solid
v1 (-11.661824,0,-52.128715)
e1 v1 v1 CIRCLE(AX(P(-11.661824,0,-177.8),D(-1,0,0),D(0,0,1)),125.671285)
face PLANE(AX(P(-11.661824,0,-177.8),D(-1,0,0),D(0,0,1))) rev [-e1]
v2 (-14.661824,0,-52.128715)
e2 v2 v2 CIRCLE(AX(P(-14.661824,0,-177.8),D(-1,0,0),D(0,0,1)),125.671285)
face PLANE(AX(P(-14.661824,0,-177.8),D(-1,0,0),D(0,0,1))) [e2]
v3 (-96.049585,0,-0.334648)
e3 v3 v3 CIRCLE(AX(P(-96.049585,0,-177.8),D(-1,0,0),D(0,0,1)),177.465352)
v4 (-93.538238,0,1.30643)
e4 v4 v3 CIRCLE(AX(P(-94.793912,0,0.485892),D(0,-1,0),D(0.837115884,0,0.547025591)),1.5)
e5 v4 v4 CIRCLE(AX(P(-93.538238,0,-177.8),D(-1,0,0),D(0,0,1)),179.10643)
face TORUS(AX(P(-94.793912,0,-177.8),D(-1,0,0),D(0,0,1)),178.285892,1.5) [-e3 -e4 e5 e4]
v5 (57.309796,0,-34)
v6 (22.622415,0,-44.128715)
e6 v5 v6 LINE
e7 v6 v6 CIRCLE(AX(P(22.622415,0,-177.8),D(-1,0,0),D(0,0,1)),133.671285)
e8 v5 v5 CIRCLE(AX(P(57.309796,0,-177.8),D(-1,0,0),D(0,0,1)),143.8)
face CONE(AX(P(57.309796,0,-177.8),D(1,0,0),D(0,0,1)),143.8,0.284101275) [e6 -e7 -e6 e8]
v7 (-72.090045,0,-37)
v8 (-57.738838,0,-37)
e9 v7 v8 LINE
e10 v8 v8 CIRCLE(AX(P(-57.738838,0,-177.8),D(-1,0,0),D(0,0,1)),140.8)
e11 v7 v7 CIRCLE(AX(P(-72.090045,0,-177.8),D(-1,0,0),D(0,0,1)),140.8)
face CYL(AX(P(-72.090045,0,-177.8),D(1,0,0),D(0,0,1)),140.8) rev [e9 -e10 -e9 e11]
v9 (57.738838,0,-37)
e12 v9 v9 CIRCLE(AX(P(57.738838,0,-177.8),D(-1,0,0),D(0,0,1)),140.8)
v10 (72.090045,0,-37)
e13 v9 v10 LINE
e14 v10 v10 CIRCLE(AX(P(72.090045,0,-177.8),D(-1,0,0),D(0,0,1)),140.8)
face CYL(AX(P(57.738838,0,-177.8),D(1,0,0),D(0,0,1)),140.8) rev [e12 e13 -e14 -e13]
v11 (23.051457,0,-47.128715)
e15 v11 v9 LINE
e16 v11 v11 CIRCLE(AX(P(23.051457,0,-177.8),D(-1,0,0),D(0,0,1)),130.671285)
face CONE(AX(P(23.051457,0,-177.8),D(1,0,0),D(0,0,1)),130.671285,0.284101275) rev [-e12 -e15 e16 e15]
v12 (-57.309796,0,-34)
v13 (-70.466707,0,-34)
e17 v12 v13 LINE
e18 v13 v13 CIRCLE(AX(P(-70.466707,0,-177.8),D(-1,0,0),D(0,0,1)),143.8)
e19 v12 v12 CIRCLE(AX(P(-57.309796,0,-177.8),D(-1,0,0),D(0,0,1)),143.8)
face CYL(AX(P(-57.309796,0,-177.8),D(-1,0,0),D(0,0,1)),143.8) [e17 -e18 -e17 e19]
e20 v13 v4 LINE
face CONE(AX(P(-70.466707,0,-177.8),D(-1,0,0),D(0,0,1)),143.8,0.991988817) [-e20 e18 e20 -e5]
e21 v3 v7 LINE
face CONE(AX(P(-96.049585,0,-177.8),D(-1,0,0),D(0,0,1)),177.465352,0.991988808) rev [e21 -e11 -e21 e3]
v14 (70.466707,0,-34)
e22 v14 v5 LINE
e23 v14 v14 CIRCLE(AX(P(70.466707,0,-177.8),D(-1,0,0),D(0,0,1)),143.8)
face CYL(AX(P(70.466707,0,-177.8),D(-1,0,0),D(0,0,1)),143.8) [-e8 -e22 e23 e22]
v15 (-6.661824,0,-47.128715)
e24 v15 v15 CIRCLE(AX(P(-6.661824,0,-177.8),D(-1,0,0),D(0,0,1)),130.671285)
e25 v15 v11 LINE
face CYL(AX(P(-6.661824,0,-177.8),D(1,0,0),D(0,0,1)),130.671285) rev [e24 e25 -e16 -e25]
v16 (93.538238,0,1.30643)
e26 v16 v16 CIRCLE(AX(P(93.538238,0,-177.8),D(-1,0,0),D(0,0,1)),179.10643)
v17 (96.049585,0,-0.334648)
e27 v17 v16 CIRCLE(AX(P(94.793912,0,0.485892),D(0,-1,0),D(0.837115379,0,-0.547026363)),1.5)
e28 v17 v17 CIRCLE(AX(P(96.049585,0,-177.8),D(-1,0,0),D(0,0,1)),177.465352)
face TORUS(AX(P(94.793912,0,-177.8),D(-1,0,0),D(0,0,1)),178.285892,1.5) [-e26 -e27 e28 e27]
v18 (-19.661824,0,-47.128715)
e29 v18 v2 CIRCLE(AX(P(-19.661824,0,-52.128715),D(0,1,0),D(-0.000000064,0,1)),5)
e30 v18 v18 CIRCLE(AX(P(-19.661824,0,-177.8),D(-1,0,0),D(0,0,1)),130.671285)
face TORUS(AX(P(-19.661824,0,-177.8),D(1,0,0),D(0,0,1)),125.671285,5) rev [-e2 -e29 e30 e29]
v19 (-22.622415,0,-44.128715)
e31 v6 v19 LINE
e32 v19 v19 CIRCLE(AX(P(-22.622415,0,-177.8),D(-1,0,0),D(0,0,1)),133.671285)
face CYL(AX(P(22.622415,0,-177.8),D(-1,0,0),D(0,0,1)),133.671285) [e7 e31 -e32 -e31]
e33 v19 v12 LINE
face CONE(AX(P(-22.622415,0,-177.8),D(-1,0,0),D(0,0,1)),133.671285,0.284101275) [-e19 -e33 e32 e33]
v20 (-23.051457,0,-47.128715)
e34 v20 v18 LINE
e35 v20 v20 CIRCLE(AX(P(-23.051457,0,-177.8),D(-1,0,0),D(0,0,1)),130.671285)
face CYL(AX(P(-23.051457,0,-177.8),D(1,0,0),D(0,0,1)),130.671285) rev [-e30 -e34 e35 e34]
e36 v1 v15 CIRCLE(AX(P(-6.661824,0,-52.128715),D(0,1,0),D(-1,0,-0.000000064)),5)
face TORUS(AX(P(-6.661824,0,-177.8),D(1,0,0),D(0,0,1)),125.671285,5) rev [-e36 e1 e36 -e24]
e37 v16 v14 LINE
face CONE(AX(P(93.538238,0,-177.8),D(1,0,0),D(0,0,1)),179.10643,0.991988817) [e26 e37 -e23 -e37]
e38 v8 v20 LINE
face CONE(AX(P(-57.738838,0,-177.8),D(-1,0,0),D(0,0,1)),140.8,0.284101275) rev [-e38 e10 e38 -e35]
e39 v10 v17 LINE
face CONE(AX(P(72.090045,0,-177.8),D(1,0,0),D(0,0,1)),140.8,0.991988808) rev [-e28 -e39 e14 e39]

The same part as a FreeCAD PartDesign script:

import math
import FreeCAD as App
import Part
import Sketcher

V = App.Vector

doc = App.newDocument("Part")
params = doc.addObject("Spreadsheet::Sheet", "Params")
for row, (alias, value) in enumerate([
    ("sketch1_radius", "5 mm"),
    ("sketch1_radius2", "1.5 mm"),
    ("sketch1_width", "3 mm"),
    ("revolution_angle", "360 deg"),
], start=1):
    params.set(f"A{row}", alias)
    params.set(f"B{row}", "=" + value)
    params.setAlias(f"B{row}", alias)

body = doc.addObject("PartDesign::Body", "Body")

# Sketch on XZ plane
sketch1 = doc.addObject("Sketcher::SketchObject", "Sketch")
body.addObject(sketch1)
sketch1.AttachmentSupport = (doc.XZ_Plane, [""])
sketch1.MapMode = "FlatFace"
sketch1.addGeometry(Part.LineSegment(V(70.5, -34, 0), V(57.3, -34, 0)), False)
sketch1.addGeometry(Part.LineSegment(V(57.3, -34, 0), V(22.6, -44.1, 0)), False)
sketch1.addGeometry(Part.LineSegment(V(22.6, -44.1, 0), V(-22.6, -44.1, 0)), False)
sketch1.addGeometry(Part.LineSegment(V(-22.6, -44.1, 0), V(-57.3, -34, 0)), False)
sketch1.addGeometry(Part.LineSegment(V(-57.3, -34, 0), V(-70.5, -34, 0)), False)
sketch1.addGeometry(Part.LineSegment(V(-70.5, -34, 0), V(-93.5, 1.3, 0)), False)
sketch1.addGeometry(Part.ArcOfCircle(Part.Circle(V(-94.8, 0.5, 0), V(0, 0, 1), 1.5), math.radians(33), math.radians(213)), False)
sketch1.addGeometry(Part.LineSegment(V(-96, -0.3, 0), V(-72.1, -37, 0)), False)
sketch1.addGeometry(Part.LineSegment(V(-72.1, -37, 0), V(-57.7, -37, 0)), False)
sketch1.addGeometry(Part.LineSegment(V(-57.7, -37, 0), V(-23.1, -47.1, 0)), False)
sketch1.addGeometry(Part.LineSegment(V(-23.1, -47.1, 0), V(-19.7, -47.1, 0)), False)
sketch1.addGeometry(Part.ArcOfCircle(Part.Circle(V(-19.7, -52.1, 0), V(0, 0, 1), 5), math.radians(0), math.radians(90)), False)
sketch1.addGeometry(Part.LineSegment(V(-14.7, -52.1, 0), V(-14.7, -177.8, 0)), False)
sketch1.addGeometry(Part.LineSegment(V(-14.7, -177.8, 0), V(-11.7, -177.8, 0)), False)
sketch1.addGeometry(Part.LineSegment(V(-11.7, -177.8, 0), V(-11.7, -52.1, 0)), False)
sketch1.addGeometry(Part.ArcOfCircle(Part.Circle(V(-6.7, -52.1, 0), V(0, 0, 1), 5), math.radians(90), math.radians(180)), False)
sketch1.addGeometry(Part.LineSegment(V(-6.7, -47.1, 0), V(23.1, -47.1, 0)), False)
sketch1.addGeometry(Part.LineSegment(V(23.1, -47.1, 0), V(57.7, -37, 0)), False)
sketch1.addGeometry(Part.LineSegment(V(57.7, -37, 0), V(72.1, -37, 0)), False)
sketch1.addGeometry(Part.LineSegment(V(72.1, -37, 0), V(96, -0.3, 0)), False)
sketch1.addGeometry(Part.ArcOfCircle(Part.Circle(V(94.8, 0.5, 0), V(0, 0, 1), 1.5), math.radians(-33), math.radians(147)), False)
sketch1.addGeometry(Part.LineSegment(V(93.5, 1.3, 0), V(70.5, -34, 0)), False)
sketch1.addGeometry(Part.LineSegment(V(96, -177.8, 0), V(-96, -177.8, 0)), True)  # axis
sketch1.addConstraint(Sketcher.Constraint("Coincident", 0, 2, 1, 1))
sketch1.addConstraint(Sketcher.Constraint("Coincident", 1, 2, 2, 1))
sketch1.addConstraint(Sketcher.Constraint("Coincident", 2, 2, 3, 1))
sketch1.addConstraint(Sketcher.Constraint("Coincident", 3, 2, 4, 1))
sketch1.addConstraint(Sketcher.Constraint("Coincident", 4, 2, 5, 1))
sketch1.addConstraint(Sketcher.Constraint("Tangent", 5, 2, 6, 1))
sketch1.addConstraint(Sketcher.Constraint("Tangent", 6, 2, 7, 1))
sketch1.addConstraint(Sketcher.Constraint("Coincident", 7, 2, 8, 1))
sketch1.addConstraint(Sketcher.Constraint("Coincident", 8, 2, 9, 1))
sketch1.addConstraint(Sketcher.Constraint("Coincident", 9, 2, 10, 1))
sketch1.addConstraint(Sketcher.Constraint("Tangent", 10, 2, 11, 2))
sketch1.addConstraint(Sketcher.Constraint("Tangent", 11, 1, 12, 1))
sketch1.addConstraint(Sketcher.Constraint("Coincident", 12, 2, 13, 1))
sketch1.addConstraint(Sketcher.Constraint("Coincident", 13, 2, 14, 1))
sketch1.addConstraint(Sketcher.Constraint("Tangent", 14, 2, 15, 2))
sketch1.addConstraint(Sketcher.Constraint("Tangent", 15, 1, 16, 1))
sketch1.addConstraint(Sketcher.Constraint("Coincident", 16, 2, 17, 1))
sketch1.addConstraint(Sketcher.Constraint("Coincident", 17, 2, 18, 1))
sketch1.addConstraint(Sketcher.Constraint("Coincident", 18, 2, 19, 1))
sketch1.addConstraint(Sketcher.Constraint("Tangent", 19, 2, 20, 1))
sketch1.addConstraint(Sketcher.Constraint("Tangent", 20, 2, 21, 1))
sketch1.addConstraint(Sketcher.Constraint("Coincident", 21, 2, 0, 1))
sketch1.addConstraint(Sketcher.Constraint("Horizontal", 0))
sketch1.addConstraint(Sketcher.Constraint("Horizontal", 2))
sketch1.addConstraint(Sketcher.Constraint("Horizontal", 4))
sketch1.addConstraint(Sketcher.Constraint("Horizontal", 8))
sketch1.addConstraint(Sketcher.Constraint("Horizontal", 10))
sketch1.addConstraint(Sketcher.Constraint("Vertical", 12))
sketch1.addConstraint(Sketcher.Constraint("Horizontal", 13))
sketch1.addConstraint(Sketcher.Constraint("Vertical", 14))
sketch1.addConstraint(Sketcher.Constraint("Horizontal", 16))
sketch1.addConstraint(Sketcher.Constraint("Horizontal", 18))
sketch1.addConstraint(Sketcher.Constraint("Horizontal", 22))
sketch1.addConstraint(Sketcher.Constraint("Equal", 11, 15))
sketch1.addConstraint(Sketcher.Constraint("Equal", 6, 20))
sketch1.addConstraint(Sketcher.Constraint("Symmetric", 6, 3, 20, 3, -2))
sketch1.addConstraint(Sketcher.Constraint("Symmetric", 0, 2, 3, 2, -2))
sketch1.addConstraint(Sketcher.Constraint("Symmetric", 9, 2, 16, 2, -2))
sketch1.addConstraint(Sketcher.Constraint("Symmetric", 8, 2, 17, 2, -2))
sketch1.addConstraint(Sketcher.Constraint("Parallel", 5, 7))
sketch1.addConstraint(Sketcher.Constraint("Parallel", 3, 9))
sketch1.addConstraint(Sketcher.Constraint("Parallel", 1, 17))
sketch1.addConstraint(Sketcher.Constraint("Parallel", 19, 21))
sketch1.addConstraint(Sketcher.Constraint("Horizontal", 6, 2, 19, 2))
sketch1.addConstraint(Sketcher.Constraint("Horizontal", 13, 2, 22, 1))
sketch1.addConstraint(Sketcher.Constraint("Vertical", 19, 2, 22, 1))
sketch1.addConstraint(Sketcher.Constraint("Vertical", 6, 2, 22, 2))
sketch1.addConstraint(Sketcher.Constraint("Equal", 3, 9))
sketch1.addConstraint(Sketcher.Constraint("Radius", 11, 5.0))
sketch1.addConstraint(Sketcher.Constraint("Radius", 6, 1.5))
sketch1.addConstraint(Sketcher.Constraint("DistanceX", 13, 1, 13, 2, 3.0))
sketch1.addConstraint(Sketcher.Constraint("DistanceY", 0, 2, -1, 1, 34.0))
sketch1.addConstraint(Sketcher.Constraint("DistanceY", 7, 2, -1, 1, 37.0))
sketch1.addConstraint(Sketcher.Constraint("DistanceY", 12, 2, -1, 1, 177.8))
sketch1.addConstraint(Sketcher.Constraint("DistanceX", 0, 2, 0, 1, 13.156911))
sketch1.addConstraint(Sketcher.Constraint("DistanceX", 2, 2, 2, 1, 45.24483))
sketch1.addConstraint(Sketcher.Constraint("DistanceX", 16, 1, 16, 2, 29.713281))
sketch1.addConstraint(Sketcher.Constraint("DistanceX", 22, 2, 22, 1, 192.09917))
sketch1.addConstraint(Sketcher.Constraint("DistanceX", 17, 2, 20, 2, 35.7994))
sketch1.addConstraint(Sketcher.Constraint("Distance", 5, 42.176291))
sketch1.addConstraint(Sketcher.Constraint("Distance", 7, 43.79963))
sketch1.addConstraint(Sketcher.Constraint("DistanceY", 12, 2, 12, 1, 125.671285))
sketch1.setExpression("Constraints[48]", "Params.sketch1_radius")
sketch1.setExpression("Constraints[49]", "Params.sketch1_radius2")
sketch1.setExpression("Constraints[50]", "Params.sketch1_width")
revolution = doc.addObject("PartDesign::Revolution", "Revolution")
body.addObject(revolution)
revolution.Profile = sketch1
revolution.ReferenceAxis = (sketch1, ["Axis0"])
revolution.setExpression("Angle", "Params.revolution_angle")

doc.recompute()
